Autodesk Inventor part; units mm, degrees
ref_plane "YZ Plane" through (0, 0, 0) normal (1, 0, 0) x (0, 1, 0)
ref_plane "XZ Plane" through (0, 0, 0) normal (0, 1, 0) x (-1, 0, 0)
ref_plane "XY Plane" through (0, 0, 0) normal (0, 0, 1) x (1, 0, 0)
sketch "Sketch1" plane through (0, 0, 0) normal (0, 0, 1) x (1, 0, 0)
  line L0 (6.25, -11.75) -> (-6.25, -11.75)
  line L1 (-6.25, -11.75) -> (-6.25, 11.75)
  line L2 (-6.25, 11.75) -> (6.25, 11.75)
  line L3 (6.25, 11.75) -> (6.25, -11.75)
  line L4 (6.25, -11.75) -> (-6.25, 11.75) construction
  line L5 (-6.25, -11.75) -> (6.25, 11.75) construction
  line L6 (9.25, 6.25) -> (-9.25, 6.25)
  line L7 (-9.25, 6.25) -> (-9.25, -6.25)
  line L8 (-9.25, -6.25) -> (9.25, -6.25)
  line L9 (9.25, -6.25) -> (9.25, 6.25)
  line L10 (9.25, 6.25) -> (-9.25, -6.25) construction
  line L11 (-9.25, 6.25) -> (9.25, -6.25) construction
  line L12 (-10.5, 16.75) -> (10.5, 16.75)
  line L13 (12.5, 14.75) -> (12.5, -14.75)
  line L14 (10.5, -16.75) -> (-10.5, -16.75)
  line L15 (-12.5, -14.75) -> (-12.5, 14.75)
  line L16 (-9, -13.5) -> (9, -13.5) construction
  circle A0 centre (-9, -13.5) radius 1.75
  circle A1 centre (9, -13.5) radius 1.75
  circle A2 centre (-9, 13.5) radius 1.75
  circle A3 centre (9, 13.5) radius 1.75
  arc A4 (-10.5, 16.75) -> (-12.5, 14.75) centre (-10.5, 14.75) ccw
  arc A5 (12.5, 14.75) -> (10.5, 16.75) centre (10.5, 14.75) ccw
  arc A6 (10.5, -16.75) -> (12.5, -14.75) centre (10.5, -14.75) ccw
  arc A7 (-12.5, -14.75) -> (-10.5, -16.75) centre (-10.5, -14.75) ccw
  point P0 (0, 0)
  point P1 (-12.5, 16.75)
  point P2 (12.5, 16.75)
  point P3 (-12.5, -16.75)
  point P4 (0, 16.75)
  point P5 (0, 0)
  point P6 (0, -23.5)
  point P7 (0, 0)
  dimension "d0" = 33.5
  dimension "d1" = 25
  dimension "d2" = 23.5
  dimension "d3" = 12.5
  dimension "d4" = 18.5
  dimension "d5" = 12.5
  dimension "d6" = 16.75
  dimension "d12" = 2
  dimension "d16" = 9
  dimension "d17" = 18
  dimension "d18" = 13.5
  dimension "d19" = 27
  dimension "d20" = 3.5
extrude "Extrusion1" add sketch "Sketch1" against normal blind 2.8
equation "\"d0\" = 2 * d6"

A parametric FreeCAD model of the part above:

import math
import FreeCAD as App
import Part
import Sketcher
Q = App.Units.Quantity


def add_polygon(sketch, points):
    """Adds a closed chain of lines whose ends are joined by coincident constraints."""
    first, n = sketch.GeometryCount, len(points)
    for a, b in zip(points, points[1:] + points[:1]):
        sketch.addGeometry(Part.LineSegment(App.Vector(*a, 0), App.Vector(*b, 0)), False)
    for i in range(n):
        sketch.addConstraint(Sketcher.Constraint("Coincident", first + i, 2, first + (i + 1) % n, 1))

doc = App.newDocument("Part")
body = doc.addObject("PartDesign::Body", "Body")

sketch1 = body.newObject("Sketcher::SketchObject", "Sketch")
sketch1.AttachmentSupport = (doc.getObject("XY_Plane"), [""])
sketch1.MapMode = "FlatFace"
sketch1.addGeometry(Part.LineSegment(App.Vector(10.5, 16.75, 0), App.Vector(-10.5, 16.75, 0)), False)
sketch1.addGeometry(Part.ArcOfCircle(Part.Circle(App.Vector(-10.5, 14.75, 0), App.Vector(0, 0, 1), 2), math.radians(90), math.radians(180)), False)
sketch1.addGeometry(Part.LineSegment(App.Vector(-12.5, 14.75, 0), App.Vector(-12.5, -14.75, 0)), False)
sketch1.addGeometry(Part.ArcOfCircle(Part.Circle(App.Vector(-10.5, -14.75, 0), App.Vector(0, 0, 1), 2), math.radians(180), math.radians(270)), False)
sketch1.addGeometry(Part.LineSegment(App.Vector(-10.5, -16.75, 0), App.Vector(10.5, -16.75, 0)), False)
sketch1.addGeometry(Part.ArcOfCircle(Part.Circle(App.Vector(10.5, -14.75, 0), App.Vector(0, 0, 1), 2), math.radians(-90), math.radians(0)), False)
sketch1.addGeometry(Part.LineSegment(App.Vector(12.5, -14.75, 0), App.Vector(12.5, 14.75, 0)), False)
sketch1.addGeometry(Part.ArcOfCircle(Part.Circle(App.Vector(10.5, 14.75, 0), App.Vector(0, 0, 1), 2), math.radians(0), math.radians(90)), False)
sketch1.addGeometry(Part.Circle(App.Vector(-9, -13.5, 0), App.Vector(0, 0, 1), 1.75), False)
sketch1.addGeometry(Part.Circle(App.Vector(9, -13.5, 0), App.Vector(0, 0, 1), 1.75), False)
sketch1.addGeometry(Part.Circle(App.Vector(-9, 13.5, 0), App.Vector(0, 0, 1), 1.75), False)
add_polygon(sketch1, [(6.25, -6.25), (6.25, -11.75), (-6.25, -11.75), (-6.25, -6.25), (-9.25, -6.25), (-9.25, 6.25), (-6.25, 6.25), (-6.25, 11.75), (6.25, 11.75), (6.25, 6.25), (9.25, 6.25), (9.25, -6.25)])
sketch1.addGeometry(Part.Circle(App.Vector(9, 13.5, 0), App.Vector(0, 0, 1), 1.75), False)
sketch1.addConstraint([
    Sketcher.Constraint("Tangent", 0, 2, 1, 1),
    Sketcher.Constraint("Tangent", 1, 2, 2, 1),
    Sketcher.Constraint("Tangent", 2, 2, 3, 1),
    Sketcher.Constraint("Tangent", 3, 2, 4, 1),
    Sketcher.Constraint("Tangent", 4, 2, 5, 1),
    Sketcher.Constraint("Tangent", 5, 2, 6, 1),
    Sketcher.Constraint("Tangent", 6, 2, 7, 1),
    Sketcher.Constraint("Tangent", 7, 2, 0, 1),
    Sketcher.Constraint("Horizontal", 0),
    Sketcher.Constraint("Vertical", 2),
    Sketcher.Constraint("Horizontal", 4),
    Sketcher.Constraint("Vertical", 6),
    Sketcher.Constraint("Vertical", 11),
    Sketcher.Constraint("Horizontal", 12),
    Sketcher.Constraint("Vertical", 13),
    Sketcher.Constraint("Horizontal", 14),
    Sketcher.Constraint("Vertical", 15),
    Sketcher.Constraint("Horizontal", 16),
    Sketcher.Constraint("Vertical", 17),
    Sketcher.Constraint("Horizontal", 18),
    Sketcher.Constraint("Vertical", 19),
    Sketcher.Constraint("Horizontal", 20),
    Sketcher.Constraint("Vertical", 21),
    Sketcher.Constraint("Horizontal", 22),
    Sketcher.Constraint("Equal", 1, 3),
    Sketcher.Constraint("Equal", 3, 5),
    Sketcher.Constraint("Equal", 5, 7),
    Sketcher.Constraint("Equal", 8, 9),
    Sketcher.Constraint("Equal", 9, 10),
    Sketcher.Constraint("Equal", 10, 23),
    Sketcher.Constraint("Symmetric", 1, 3, 5, 3, -1, 1),
    Sketcher.Constraint("Symmetric", 9, 3, 10, 3, -1, 1),
    Sketcher.Constraint("Symmetric", 8, 3, 23, 3, -1, 1),
    Sketcher.Constraint("Symmetric", 11, 2, 17, 2, -1, 1),
    Sketcher.Constraint("Symmetric", 13, 2, 19, 2, -1, 1),
    Sketcher.Constraint("Symmetric", 15, 2, 21, 2, -1, 1),
    Sketcher.Constraint("Symmetric", 8, 3, 9, 3, -2),
    Sketcher.Constraint("Symmetric", 16, 2, 19, 2, -2),
    Sketcher.Constraint("Equal", 18, 15),
    Sketcher.Constraint("Radius", 1, Q("2 mm")),
    Sketcher.Constraint("Diameter", 8, Q("3.5 mm")),
    Sketcher.Constraint("DistanceX", 12, 2, 12, 1, Q("12.5 mm")),
    Sketcher.Constraint("DistanceX", 8, 3, -1, 1, Q("9 mm")),
    Sketcher.Constraint("DistanceY", 8, 3, 10, 3, Q("27 mm")),
    Sketcher.Constraint("DistanceX", 1, 2, -1, 1, Q("12.5 mm")),
    Sketcher.Constraint("DistanceX", 14, 2, 14, 1, Q("3 mm")),
    Sketcher.Constraint("DistanceY", -1, 1, 0, 2, Q("16.75 mm")),
    Sketcher.Constraint("DistanceY", 11, 2, 11, 1, Q("5.5 mm")),
])
pad1 = body.newObject("PartDesign::Pad", "Pad")
pad1.Profile = sketch1
pad1.Length = 2.8
pad1.Reversed = True

doc.recompute()
